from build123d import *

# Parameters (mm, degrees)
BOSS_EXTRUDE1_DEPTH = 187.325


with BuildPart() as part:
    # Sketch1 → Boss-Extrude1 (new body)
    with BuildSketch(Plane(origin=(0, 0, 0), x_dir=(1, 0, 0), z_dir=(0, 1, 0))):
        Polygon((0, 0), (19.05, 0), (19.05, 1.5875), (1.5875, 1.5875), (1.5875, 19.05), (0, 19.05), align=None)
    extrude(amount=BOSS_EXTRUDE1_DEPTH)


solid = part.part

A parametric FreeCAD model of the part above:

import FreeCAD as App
import Part
import Sketcher

V = App.Vector
Q = App.Units.Quantity


def add_polygon(sketch, points):
    """Adds a closed chain of lines whose ends are joined by coincident constraints."""
    first, n = sketch.GeometryCount, len(points)
    for a, b in zip(points, points[1:] + points[:1]):
        sketch.addGeometry(Part.LineSegment(App.Vector(*a, 0), App.Vector(*b, 0)), False)
    for i in range(n):
        sketch.addConstraint(Sketcher.Constraint("Coincident", first + i, 2, first + (i + 1) % n, 1))

doc = App.newDocument("Part")
body = doc.addObject("PartDesign::Body", "Body")

sketch1 = body.newObject("Sketcher::SketchObject", "Sketch")
sketch1.AttachmentSupport = (doc.getObject("XZ_Plane"), [""])
sketch1.MapMode = "FlatFace"
add_polygon(sketch1, [(0, 0), (19.1, 0), (19.1, -1.6), (1.6, -1.6), (1.6, -19.1), (0, -19.1)])
sketch1.addConstraint(Sketcher.Constraint("Horizontal", 0))
sketch1.addConstraint(Sketcher.Constraint("Vertical", 1))
sketch1.addConstraint(Sketcher.Constraint("Horizontal", 2))
sketch1.addConstraint(Sketcher.Constraint("Vertical", 3))
sketch1.addConstraint(Sketcher.Constraint("Horizontal", 4))
sketch1.addConstraint(Sketcher.Constraint("Vertical", 5))
sketch1.addConstraint(Sketcher.Constraint("Coincident", 5, 2, -1, 1))
sketch1.addConstraint(Sketcher.Constraint("Equal", 4, 1))
sketch1.addConstraint(Sketcher.Constraint("Equal", 2, 3))
sketch1.addConstraint(Sketcher.Constraint("DistanceX", 0, 1, 0, 2, Q("0.75 in")))
sketch1.addConstraint(Sketcher.Constraint("DistanceX", 2, 2, 2, 1, Q("0.6875 in")))
pad1 = body.newObject("PartDesign::Pad", "Pad")
pad1.Profile = sketch1
pad1.Length = Q("7.375 in")
pad1.Reversed = True

doc.recompute()
